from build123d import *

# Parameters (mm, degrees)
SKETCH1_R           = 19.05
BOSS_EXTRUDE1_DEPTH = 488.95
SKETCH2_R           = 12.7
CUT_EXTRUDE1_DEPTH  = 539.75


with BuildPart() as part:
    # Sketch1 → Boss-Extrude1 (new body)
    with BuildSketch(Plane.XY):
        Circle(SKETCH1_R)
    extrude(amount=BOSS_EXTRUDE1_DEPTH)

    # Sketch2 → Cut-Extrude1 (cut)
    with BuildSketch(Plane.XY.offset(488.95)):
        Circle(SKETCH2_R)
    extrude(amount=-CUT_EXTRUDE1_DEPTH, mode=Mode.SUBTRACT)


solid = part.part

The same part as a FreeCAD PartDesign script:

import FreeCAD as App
import Part
import Sketcher
Q = App.Units.Quantity

doc = App.newDocument("Part")
body = doc.addObject("PartDesign::Body", "Body")

# Sketch on XY plane
sketch1 = body.newObject("Sketcher::SketchObject", "Sketch")
sketch1.AttachmentSupport = (doc.getObject("XY_Plane"), [""])
sketch1.MapMode = "FlatFace"
sketch1.addGeometry(Part.Circle(App.Vector(0, 0, 0), App.Vector(0, 0, 1), 19), False)
sketch1.addConstraint([
    Sketcher.Constraint("Coincident", 0, 3, -1, 1),
    Sketcher.Constraint("Diameter", 0, Q("1.5 in")),
])
pad1 = body.newObject("PartDesign::Pad", "Pad")
pad1.Profile = sketch1
pad1.Length = Q("19.25 in")

# Sketch on XY plane
sketch2 = body.newObject("Sketcher::SketchObject", "Sketch001")
sketch2.AttachmentSupport = (doc.getObject("XY_Plane"), [""])
sketch2.MapMode = "FlatFace"
sketch2.AttachmentOffset = App.Placement(App.Vector(0, 0, 19.25 * 25.4), App.Rotation())
sketch2.addGeometry(Part.Circle(App.Vector(0, 0, 0), App.Vector(0, 0, 1), 13), False)
sketch2.addConstraint([
    Sketcher.Constraint("Coincident", 0, 3, -1, 1),
    Sketcher.Constraint("Diameter", 0, Q("1 in")),
])
pocket1 = body.newObject("PartDesign::Pocket", "Pocket")
pocket1.Profile = sketch2
pocket1.Length = Q("21.25 in")

doc.recompute()
